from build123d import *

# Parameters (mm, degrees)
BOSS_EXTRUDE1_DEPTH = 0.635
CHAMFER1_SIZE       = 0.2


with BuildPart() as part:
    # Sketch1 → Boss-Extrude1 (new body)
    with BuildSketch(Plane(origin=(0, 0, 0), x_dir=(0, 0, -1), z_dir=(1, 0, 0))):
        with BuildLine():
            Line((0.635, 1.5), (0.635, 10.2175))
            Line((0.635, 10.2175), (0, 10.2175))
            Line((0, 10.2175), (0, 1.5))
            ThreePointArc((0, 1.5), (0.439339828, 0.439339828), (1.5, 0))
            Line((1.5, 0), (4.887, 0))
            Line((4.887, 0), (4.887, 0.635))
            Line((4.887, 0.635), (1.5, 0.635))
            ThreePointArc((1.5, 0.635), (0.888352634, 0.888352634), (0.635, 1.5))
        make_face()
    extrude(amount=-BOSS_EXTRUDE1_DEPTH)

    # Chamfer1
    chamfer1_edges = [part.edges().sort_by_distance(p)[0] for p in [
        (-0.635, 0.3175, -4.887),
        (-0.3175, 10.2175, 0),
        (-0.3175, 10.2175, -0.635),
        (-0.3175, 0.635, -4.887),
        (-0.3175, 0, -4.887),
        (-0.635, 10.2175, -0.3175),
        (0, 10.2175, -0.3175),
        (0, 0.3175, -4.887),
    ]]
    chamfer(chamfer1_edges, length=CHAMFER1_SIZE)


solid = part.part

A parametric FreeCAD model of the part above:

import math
import FreeCAD as App
import Part
import Sketcher
Q = App.Units.Quantity


def edges_at(feature, points):
    """Names of the edges that pass closest to the given points."""
    edges = feature.Shape.Edges
    near = lambda p: min(range(len(edges)), key=lambda i: edges[i].distToShape(Part.Vertex(*p))[0])
    return sorted({f"Edge{near(p) + 1}" for p in points})

doc = App.newDocument("Part")
body = doc.addObject("PartDesign::Body", "Body")

# Sketch on YZ plane
sketch1 = doc.addObject("Sketcher::SketchObject", "Sketch")
body.addObject(sketch1)
sketch1.AttachmentSupport = (doc.YZ_Plane, [""])
sketch1.MapMode = "FlatFace"
sketch1.addGeometry([
    Part.LineSegment(App.Vector(1.5, -0.6, 0), App.Vector(10.2, -0.6, 0)),  # 0
    Part.LineSegment(App.Vector(10.2, -0.6, 0), App.Vector(10.2, 0, 0)),  # 1
    Part.LineSegment(App.Vector(10.2, 0, 0), App.Vector(1.5, 0, 0)),  # 2
    Part.ArcOfCircle(Part.Circle(App.Vector(1.5, -1.5, 0), App.Vector(0, 0, 1), 1.5), math.radians(90), math.radians(180)),  # 3
    Part.LineSegment(App.Vector(0, -1.5, 0), App.Vector(0, -4.9, 0)),  # 4
    Part.LineSegment(App.Vector(0, -4.9, 0), App.Vector(0.6, -4.9, 0)),  # 5
    Part.LineSegment(App.Vector(0.6, -4.9, 0), App.Vector(0.6, -1.5, 0)),  # 6
    Part.ArcOfCircle(Part.Circle(App.Vector(1.5, -1.5, 0), App.Vector(0, 0, 1), 0.9), math.radians(90), math.radians(180)),  # 7
], False)
sketch1.addConstraint([
    Sketcher.Constraint("Coincident", 0, 2, 1, 1),
    Sketcher.Constraint("Coincident", 1, 2, 2, 1),
    Sketcher.Constraint("Tangent", 2, 2, 3, 1),
    Sketcher.Constraint("Tangent", 3, 2, 4, 1),
    Sketcher.Constraint("Coincident", 4, 2, 5, 1),
    Sketcher.Constraint("Coincident", 5, 2, 6, 1),
    Sketcher.Constraint("Tangent", 6, 2, 7, 2),
    Sketcher.Constraint("Tangent", 7, 1, 0, 1),
    Sketcher.Constraint("Horizontal", 0),
    Sketcher.Constraint("Vertical", 1),
    Sketcher.Constraint("Horizontal", 2),
    Sketcher.Constraint("Vertical", 4),
    Sketcher.Constraint("Horizontal", 5),
    Sketcher.Constraint("Vertical", 6),
    Sketcher.Constraint("Coincident", 7, 3, 3, 3),
    Sketcher.Constraint("PointOnObject", 1, 2, -1),
    Sketcher.Constraint("PointOnObject", 3, 2, -2),
    Sketcher.Constraint("Radius", 3, Q("1.5 mm")),
    Sketcher.Constraint("Radius", 7, Q("0.865 mm")),
    Sketcher.Constraint("DistanceY", 4, 2, 4, 1, Q("3.387 mm")),
    Sketcher.Constraint("DistanceX", 0, 1, 0, 2, Q("8.7175 mm")),
])
pad1 = doc.addObject("PartDesign::Pad", "Pad")
body.addObject(pad1)
pad1.Profile = sketch1
pad1.Length = 0.635
pad1.Reversed = True
doc.recompute()

chamfer = doc.addObject("PartDesign::Chamfer", "Chamfer")
body.addObject(chamfer)
chamfer.Base = (pad1, edges_at(pad1, [
    (-0.635, 0.318, -4.887),
    (-0.318, 10.217, 0),
    (-0.318, 10.217, -0.635),
    (-0.318, 0.635, -4.887),
    (-0.318, 0, -4.887),
    (-0.635, 10.217, -0.318),
    (0, 10.217, -0.318),
    (0, 0.318, -4.887),
]))
chamfer.Size = 0.2

doc.recompute()
